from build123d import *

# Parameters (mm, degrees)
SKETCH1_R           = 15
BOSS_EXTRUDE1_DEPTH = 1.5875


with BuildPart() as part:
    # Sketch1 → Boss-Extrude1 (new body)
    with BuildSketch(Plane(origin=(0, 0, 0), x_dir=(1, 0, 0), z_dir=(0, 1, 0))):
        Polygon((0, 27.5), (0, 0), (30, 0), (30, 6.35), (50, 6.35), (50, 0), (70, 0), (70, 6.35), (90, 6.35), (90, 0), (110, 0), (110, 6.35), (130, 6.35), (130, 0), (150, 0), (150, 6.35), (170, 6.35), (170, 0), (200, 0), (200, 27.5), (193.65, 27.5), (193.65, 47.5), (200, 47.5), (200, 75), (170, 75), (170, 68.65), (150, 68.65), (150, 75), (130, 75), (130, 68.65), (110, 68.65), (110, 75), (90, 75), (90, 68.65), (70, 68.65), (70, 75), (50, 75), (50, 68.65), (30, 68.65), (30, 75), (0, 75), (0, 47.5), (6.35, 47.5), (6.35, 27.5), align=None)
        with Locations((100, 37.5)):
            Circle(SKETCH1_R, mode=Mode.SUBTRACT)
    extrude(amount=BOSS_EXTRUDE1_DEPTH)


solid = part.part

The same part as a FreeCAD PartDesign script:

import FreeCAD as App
import Part
import Sketcher
from FreeCAD import Vector
Q = App.Units.Quantity

doc = App.newDocument("Part")
body = doc.addObject("PartDesign::Body", "Body")

sketch1 = body.newObject("Sketcher::SketchObject", "Sketch")
sketch1.AttachmentSupport = (doc.getObject("XZ_Plane"), [""])
sketch1.MapMode = "FlatFace"
sketch1.addGeometry(Part.LineSegment(Vector(0, -28, 0), Vector(0, 0, 0)), False)
sketch1.addGeometry(Part.LineSegment(Vector(0, 0, 0), Vector(30, 0, 0)), False)
sketch1.addGeometry(Part.LineSegment(Vector(30, 0, 0), Vector(30, -6, 0)), False)
sketch1.addGeometry(Part.LineSegment(Vector(30, -6, 0), Vector(50, -6, 0)), False)
sketch1.addGeometry(Part.LineSegment(Vector(50, -6, 0), Vector(50, 0, 0)), False)
sketch1.addGeometry(Part.LineSegment(Vector(50, 0, 0), Vector(70, 0, 0)), False)
sketch1.addGeometry(Part.LineSegment(Vector(70, 0, 0), Vector(70, -6, 0)), False)
sketch1.addGeometry(Part.LineSegment(Vector(70, -6, 0), Vector(90, -6, 0)), False)
sketch1.addGeometry(Part.LineSegment(Vector(90, -6, 0), Vector(90, 0, 0)), False)
sketch1.addGeometry(Part.LineSegment(Vector(90, 0, 0), Vector(110, 0, 0)), False)
sketch1.addGeometry(Part.LineSegment(Vector(110, 0, 0), Vector(110, -6, 0)), False)
sketch1.addGeometry(Part.LineSegment(Vector(110, -6, 0), Vector(130, -6, 0)), False)
sketch1.addGeometry(Part.LineSegment(Vector(130, -6, 0), Vector(130, 0, 0)), False)
sketch1.addGeometry(Part.LineSegment(Vector(130, 0, 0), Vector(150, 0, 0)), False)
sketch1.addGeometry(Part.LineSegment(Vector(150, 0, 0), Vector(150, -6, 0)), False)
sketch1.addGeometry(Part.LineSegment(Vector(150, -6, 0), Vector(170, -6, 0)), False)
sketch1.addGeometry(Part.LineSegment(Vector(170, -6, 0), Vector(170, 0, 0)), False)
sketch1.addGeometry(Part.LineSegment(Vector(170, 0, 0), Vector(200, 0, 0)), False)
sketch1.addGeometry(Part.LineSegment(Vector(200, 0, 0), Vector(200, -28, 0)), False)
sketch1.addGeometry(Part.LineSegment(Vector(200, -28, 0), Vector(194, -28, 0)), False)
sketch1.addGeometry(Part.LineSegment(Vector(194, -28, 0), Vector(194, -48, 0)), False)
sketch1.addGeometry(Part.LineSegment(Vector(194, -48, 0), Vector(200, -48, 0)), False)
sketch1.addGeometry(Part.LineSegment(Vector(200, -48, 0), Vector(200, -75, 0)), False)
sketch1.addGeometry(Part.LineSegment(Vector(200, -75, 0), Vector(170, -75, 0)), False)
sketch1.addGeometry(Part.LineSegment(Vector(170, -75, 0), Vector(170, -69, 0)), False)
sketch1.addGeometry(Part.LineSegment(Vector(170, -69, 0), Vector(150, -69, 0)), False)
sketch1.addGeometry(Part.LineSegment(Vector(150, -69, 0), Vector(150, -75, 0)), False)
sketch1.addGeometry(Part.LineSegment(Vector(150, -75, 0), Vector(130, -75, 0)), False)
sketch1.addGeometry(Part.LineSegment(Vector(130, -75, 0), Vector(130, -69, 0)), False)
sketch1.addGeometry(Part.LineSegment(Vector(130, -69, 0), Vector(110, -69, 0)), False)
sketch1.addGeometry(Part.LineSegment(Vector(110, -69, 0), Vector(110, -75, 0)), False)
sketch1.addGeometry(Part.LineSegment(Vector(110, -75, 0), Vector(90, -75, 0)), False)
sketch1.addGeometry(Part.LineSegment(Vector(90, -75, 0), Vector(90, -69, 0)), False)
sketch1.addGeometry(Part.LineSegment(Vector(90, -69, 0), Vector(70, -69, 0)), False)
sketch1.addGeometry(Part.LineSegment(Vector(70, -69, 0), Vector(70, -75, 0)), False)
sketch1.addGeometry(Part.LineSegment(Vector(70, -75, 0), Vector(50, -75, 0)), False)
sketch1.addGeometry(Part.LineSegment(Vector(50, -75, 0), Vector(50, -69, 0)), False)
sketch1.addGeometry(Part.LineSegment(Vector(50, -69, 0), Vector(30, -69, 0)), False)
sketch1.addGeometry(Part.LineSegment(Vector(30, -69, 0), Vector(30, -75, 0)), False)
sketch1.addGeometry(Part.LineSegment(Vector(30, -75, 0), Vector(0, -75, 0)), False)
sketch1.addGeometry(Part.LineSegment(Vector(0, -75, 0), Vector(0, -48, 0)), False)
sketch1.addGeometry(Part.LineSegment(Vector(0, -48, 0), Vector(6, -48, 0)), False)
sketch1.addGeometry(Part.LineSegment(Vector(6, -48, 0), Vector(6, -28, 0)), False)
sketch1.addGeometry(Part.LineSegment(Vector(6, -28, 0), Vector(0, -28, 0)), False)
sketch1.addGeometry(Part.Circle(Vector(100, -38, 0), Vector(0, 0, 1), 15), False)
sketch1.addConstraint(Sketcher.Constraint("Coincident", 0, 2, 1, 1))
sketch1.addConstraint(Sketcher.Constraint("Coincident", 1, 2, 2, 1))
sketch1.addConstraint(Sketcher.Constraint("Coincident", 2, 2, 3, 1))
sketch1.addConstraint(Sketcher.Constraint("Coincident", 3, 2, 4, 1))
sketch1.addConstraint(Sketcher.Constraint("Coincident", 4, 2, 5, 1))
sketch1.addConstraint(Sketcher.Constraint("Coincident", 5, 2, 6, 1))
sketch1.addConstraint(Sketcher.Constraint("Coincident", 6, 2, 7, 1))
sketch1.addConstraint(Sketcher.Constraint("Coincident", 7, 2, 8, 1))
sketch1.addConstraint(Sketcher.Constraint("Coincident", 8, 2, 9, 1))
sketch1.addConstraint(Sketcher.Constraint("Coincident", 9, 2, 10, 1))
sketch1.addConstraint(Sketcher.Constraint("Coincident", 10, 2, 11, 1))
sketch1.addConstraint(Sketcher.Constraint("Coincident", 11, 2, 12, 1))
sketch1.addConstraint(Sketcher.Constraint("Coincident", 12, 2, 13, 1))
sketch1.addConstraint(Sketcher.Constraint("Coincident", 13, 2, 14, 1))
sketch1.addConstraint(Sketcher.Constraint("Coincident", 14, 2, 15, 1))
sketch1.addConstraint(Sketcher.Constraint("Coincident", 15, 2, 16, 1))
sketch1.addConstraint(Sketcher.Constraint("Coincident", 16, 2, 17, 1))
sketch1.addConstraint(Sketcher.Constraint("Coincident", 17, 2, 18, 1))
sketch1.addConstraint(Sketcher.Constraint("Coincident", 18, 2, 19, 1))
sketch1.addConstraint(Sketcher.Constraint("Coincident", 19, 2, 20, 1))
sketch1.addConstraint(Sketcher.Constraint("Coincident", 20, 2, 21, 1))
sketch1.addConstraint(Sketcher.Constraint("Coincident", 21, 2, 22, 1))
sketch1.addConstraint(Sketcher.Constraint("Coincident", 22, 2, 23, 1))
sketch1.addConstraint(Sketcher.Constraint("Coincident", 23, 2, 24, 1))
sketch1.addConstraint(Sketcher.Constraint("Coincident", 24, 2, 25, 1))
sketch1.addConstraint(Sketcher.Constraint("Coincident", 25, 2, 26, 1))
sketch1.addConstraint(Sketcher.Constraint("Coincident", 26, 2, 27, 1))
sketch1.addConstraint(Sketcher.Constraint("Coincident", 27, 2, 28, 1))
sketch1.addConstraint(Sketcher.Constraint("Coincident", 28, 2, 29, 1))
sketch1.addConstraint(Sketcher.Constraint("Coincident", 29, 2, 30, 1))
sketch1.addConstraint(Sketcher.Constraint("Coincident", 30, 2, 31, 1))
sketch1.addConstraint(Sketcher.Constraint("Coincident", 31, 2, 32, 1))
sketch1.addConstraint(Sketcher.Constraint("Coincident", 32, 2, 33, 1))
sketch1.addConstraint(Sketcher.Constraint("Coincident", 33, 2, 34, 1))
sketch1.addConstraint(Sketcher.Constraint("Coincident", 34, 2, 35, 1))
sketch1.addConstraint(Sketcher.Constraint("Coincident", 35, 2, 36, 1))
sketch1.addConstraint(Sketcher.Constraint("Coincident", 36, 2, 37, 1))
sketch1.addConstraint(Sketcher.Constraint("Coincident", 37, 2, 38, 1))
sketch1.addConstraint(Sketcher.Constraint("Coincident", 38, 2, 39, 1))
sketch1.addConstraint(Sketcher.Constraint("Coincident", 39, 2, 40, 1))
sketch1.addConstraint(Sketcher.Constraint("Coincident", 40, 2, 41, 1))
sketch1.addConstraint(Sketcher.Constraint("Coincident", 41, 2, 42, 1))
sketch1.addConstraint(Sketcher.Constraint("Coincident", 42, 2, 43, 1))
sketch1.addConstraint(Sketcher.Constraint("Coincident", 43, 2, 0, 1))
sketch1.addConstraint(Sketcher.Constraint("Vertical", 0))
sketch1.addConstraint(Sketcher.Constraint("Horizontal", 1))
sketch1.addConstraint(Sketcher.Constraint("Vertical", 2))
sketch1.addConstraint(Sketcher.Constraint("Horizontal", 3))
sketch1.addConstraint(Sketcher.Constraint("Vertical", 4))
sketch1.addConstraint(Sketcher.Constraint("Horizontal", 5))
sketch1.addConstraint(Sketcher.Constraint("Vertical", 6))
sketch1.addConstraint(Sketcher.Constraint("Horizontal", 7))
sketch1.addConstraint(Sketcher.Constraint("Vertical", 8))
sketch1.addConstraint(Sketcher.Constraint("Horizontal", 9))
sketch1.addConstraint(Sketcher.Constraint("Vertical", 10))
sketch1.addConstraint(Sketcher.Constraint("Horizontal", 11))
sketch1.addConstraint(Sketcher.Constraint("Vertical", 12))
sketch1.addConstraint(Sketcher.Constraint("Horizontal", 13))
sketch1.addConstraint(Sketcher.Constraint("Vertical", 14))
sketch1.addConstraint(Sketcher.Constraint("Horizontal", 15))
sketch1.addConstraint(Sketcher.Constraint("Vertical", 16))
sketch1.addConstraint(Sketcher.Constraint("Horizontal", 17))
sketch1.addConstraint(Sketcher.Constraint("Vertical", 18))
sketch1.addConstraint(Sketcher.Constraint("Horizontal", 19))
sketch1.addConstraint(Sketcher.Constraint("Vertical", 20))
sketch1.addConstraint(Sketcher.Constraint("Horizontal", 21))
sketch1.addConstraint(Sketcher.Constraint("Vertical", 22))
sketch1.addConstraint(Sketcher.Constraint("Horizontal", 23))
sketch1.addConstraint(Sketcher.Constraint("Vertical", 24))
sketch1.addConstraint(Sketcher.Constraint("Horizontal", 25))
sketch1.addConstraint(Sketcher.Constraint("Vertical", 26))
sketch1.addConstraint(Sketcher.Constraint("Horizontal", 27))
sketch1.addConstraint(Sketcher.Constraint("Vertical", 28))
sketch1.addConstraint(Sketcher.Constraint("Horizontal", 29))
sketch1.addConstraint(Sketcher.Constraint("Vertical", 30))
sketch1.addConstraint(Sketcher.Constraint("Horizontal", 31))
sketch1.addConstraint(Sketcher.Constraint("Vertical", 32))
sketch1.addConstraint(Sketcher.Constraint("Horizontal", 33))
sketch1.addConstraint(Sketcher.Constraint("Vertical", 34))
sketch1.addConstraint(Sketcher.Constraint("Horizontal", 35))
sketch1.addConstraint(Sketcher.Constraint("Vertical", 36))
sketch1.addConstraint(Sketcher.Constraint("Horizontal", 37))
sketch1.addConstraint(Sketcher.Constraint("Vertical", 38))
sketch1.addConstraint(Sketcher.Constraint("Horizontal", 39))
sketch1.addConstraint(Sketcher.Constraint("Vertical", 40))
sketch1.addConstraint(Sketcher.Constraint("Horizontal", 41))
sketch1.addConstraint(Sketcher.Constraint("Vertical", 42))
sketch1.addConstraint(Sketcher.Constraint("Horizontal", 43))
sketch1.addConstraint(Sketcher.Constraint("Coincident", 0, 2, -1, 1))
sketch1.addConstraint(Sketcher.Constraint("PointOnObject", 4, 2, -1))
sketch1.addConstraint(Sketcher.Constraint("PointOnObject", 8, 2, -1))
sketch1.addConstraint(Sketcher.Constraint("PointOnObject", 12, 2, -1))
sketch1.addConstraint(Sketcher.Constraint("PointOnObject", 16, 2, -1))
sketch1.addConstraint(Sketcher.Constraint("PointOnObject", 39, 2, -2))
sketch1.addConstraint(Sketcher.Constraint("Horizontal", 3, 2, 6, 2))
sketch1.addConstraint(Sketcher.Constraint("Horizontal", 7, 2, 10, 2))
sketch1.addConstraint(Sketcher.Constraint("Horizontal", 11, 2, 14, 2))
sketch1.addConstraint(Sketcher.Constraint("Horizontal", 23, 2, 26, 2))
sketch1.addConstraint(Sketcher.Constraint("Horizontal", 25, 2, 28, 2))
sketch1.addConstraint(Sketcher.Constraint("Horizontal", 27, 2, 30, 2))
sketch1.addConstraint(Sketcher.Constraint("Horizontal", 29, 2, 32, 2))
sketch1.addConstraint(Sketcher.Constraint("Horizontal", 31, 2, 34, 2))
sketch1.addConstraint(Sketcher.Constraint("Horizontal", 33, 2, 36, 2))
sketch1.addConstraint(Sketcher.Constraint("Horizontal", 35, 2, 38, 2))
sketch1.addConstraint(Sketcher.Constraint("Horizontal", 21, 2, 40, 2))
sketch1.addConstraint(Sketcher.Constraint("Horizontal", 19, 2, 42, 2))
sketch1.addConstraint(Sketcher.Constraint("Vertical", 18, 2, 21, 2))
sketch1.addConstraint(Sketcher.Constraint("Vertical", 16, 2, 23, 2))
sketch1.addConstraint(Sketcher.Constraint("Vertical", 14, 2, 25, 2))
sketch1.addConstraint(Sketcher.Constraint("Vertical", 12, 2, 27, 2))
sketch1.addConstraint(Sketcher.Constraint("Vertical", 10, 2, 29, 2))
sketch1.addConstraint(Sketcher.Constraint("Vertical", 8, 2, 31, 2))
sketch1.addConstraint(Sketcher.Constraint("Vertical", 6, 2, 33, 2))
sketch1.addConstraint(Sketcher.Constraint("Vertical", 4, 2, 35, 2))
sketch1.addConstraint(Sketcher.Constraint("Vertical", 2, 2, 37, 2))
sketch1.addConstraint(Sketcher.Constraint("Equal", 3, 5))
sketch1.addConstraint(Sketcher.Constraint("Equal", 5, 7))
sketch1.addConstraint(Sketcher.Constraint("Equal", 7, 9))
sketch1.addConstraint(Sketcher.Constraint("Equal", 9, 11))
sketch1.addConstraint(Sketcher.Constraint("Equal", 11, 13))
sketch1.addConstraint(Sketcher.Constraint("Equal", 13, 15))
sketch1.addConstraint(Sketcher.Constraint("Equal", 1, 17))
sketch1.addConstraint(Sketcher.Constraint("Equal", 21, 41))
sketch1.addConstraint(Sketcher.Constraint("Equal", 43, 2))
sketch1.addConstraint(Sketcher.Constraint("Equal", 37, 20))
sketch1.addConstraint(Sketcher.Constraint("Equal", 18, 22))
sketch1.addConstraint(Sketcher.Constraint("Equal", 16, 24))
sketch1.addConstraint(Sketcher.Constraint("Diameter", 44, Q("30 mm")))
sketch1.addConstraint(Sketcher.Constraint("DistanceX", 1, 1, 1, 2, Q("30 mm")))
sketch1.addConstraint(Sketcher.Constraint("DistanceX", 3, 1, 3, 2, Q("20 mm")))
sketch1.addConstraint(Sketcher.Constraint("DistanceY", 0, 1, 0, 2, Q("27.5 mm")))
sketch1.addConstraint(Sketcher.Constraint("DistanceX", -1, 1, 44, 3, Q("100 mm")))
sketch1.addConstraint(Sketcher.Constraint("DistanceX", 19, 2, 19, 1, Q("6.35 mm")))
sketch1.addConstraint(Sketcher.Constraint("DistanceY", 44, 3, -1, 1, Q("37.5 mm")))
pad1 = body.newObject("PartDesign::Pad", "Pad")
pad1.Profile = sketch1
pad1.Length = 1.5875
pad1.Reversed = True

doc.recompute()
